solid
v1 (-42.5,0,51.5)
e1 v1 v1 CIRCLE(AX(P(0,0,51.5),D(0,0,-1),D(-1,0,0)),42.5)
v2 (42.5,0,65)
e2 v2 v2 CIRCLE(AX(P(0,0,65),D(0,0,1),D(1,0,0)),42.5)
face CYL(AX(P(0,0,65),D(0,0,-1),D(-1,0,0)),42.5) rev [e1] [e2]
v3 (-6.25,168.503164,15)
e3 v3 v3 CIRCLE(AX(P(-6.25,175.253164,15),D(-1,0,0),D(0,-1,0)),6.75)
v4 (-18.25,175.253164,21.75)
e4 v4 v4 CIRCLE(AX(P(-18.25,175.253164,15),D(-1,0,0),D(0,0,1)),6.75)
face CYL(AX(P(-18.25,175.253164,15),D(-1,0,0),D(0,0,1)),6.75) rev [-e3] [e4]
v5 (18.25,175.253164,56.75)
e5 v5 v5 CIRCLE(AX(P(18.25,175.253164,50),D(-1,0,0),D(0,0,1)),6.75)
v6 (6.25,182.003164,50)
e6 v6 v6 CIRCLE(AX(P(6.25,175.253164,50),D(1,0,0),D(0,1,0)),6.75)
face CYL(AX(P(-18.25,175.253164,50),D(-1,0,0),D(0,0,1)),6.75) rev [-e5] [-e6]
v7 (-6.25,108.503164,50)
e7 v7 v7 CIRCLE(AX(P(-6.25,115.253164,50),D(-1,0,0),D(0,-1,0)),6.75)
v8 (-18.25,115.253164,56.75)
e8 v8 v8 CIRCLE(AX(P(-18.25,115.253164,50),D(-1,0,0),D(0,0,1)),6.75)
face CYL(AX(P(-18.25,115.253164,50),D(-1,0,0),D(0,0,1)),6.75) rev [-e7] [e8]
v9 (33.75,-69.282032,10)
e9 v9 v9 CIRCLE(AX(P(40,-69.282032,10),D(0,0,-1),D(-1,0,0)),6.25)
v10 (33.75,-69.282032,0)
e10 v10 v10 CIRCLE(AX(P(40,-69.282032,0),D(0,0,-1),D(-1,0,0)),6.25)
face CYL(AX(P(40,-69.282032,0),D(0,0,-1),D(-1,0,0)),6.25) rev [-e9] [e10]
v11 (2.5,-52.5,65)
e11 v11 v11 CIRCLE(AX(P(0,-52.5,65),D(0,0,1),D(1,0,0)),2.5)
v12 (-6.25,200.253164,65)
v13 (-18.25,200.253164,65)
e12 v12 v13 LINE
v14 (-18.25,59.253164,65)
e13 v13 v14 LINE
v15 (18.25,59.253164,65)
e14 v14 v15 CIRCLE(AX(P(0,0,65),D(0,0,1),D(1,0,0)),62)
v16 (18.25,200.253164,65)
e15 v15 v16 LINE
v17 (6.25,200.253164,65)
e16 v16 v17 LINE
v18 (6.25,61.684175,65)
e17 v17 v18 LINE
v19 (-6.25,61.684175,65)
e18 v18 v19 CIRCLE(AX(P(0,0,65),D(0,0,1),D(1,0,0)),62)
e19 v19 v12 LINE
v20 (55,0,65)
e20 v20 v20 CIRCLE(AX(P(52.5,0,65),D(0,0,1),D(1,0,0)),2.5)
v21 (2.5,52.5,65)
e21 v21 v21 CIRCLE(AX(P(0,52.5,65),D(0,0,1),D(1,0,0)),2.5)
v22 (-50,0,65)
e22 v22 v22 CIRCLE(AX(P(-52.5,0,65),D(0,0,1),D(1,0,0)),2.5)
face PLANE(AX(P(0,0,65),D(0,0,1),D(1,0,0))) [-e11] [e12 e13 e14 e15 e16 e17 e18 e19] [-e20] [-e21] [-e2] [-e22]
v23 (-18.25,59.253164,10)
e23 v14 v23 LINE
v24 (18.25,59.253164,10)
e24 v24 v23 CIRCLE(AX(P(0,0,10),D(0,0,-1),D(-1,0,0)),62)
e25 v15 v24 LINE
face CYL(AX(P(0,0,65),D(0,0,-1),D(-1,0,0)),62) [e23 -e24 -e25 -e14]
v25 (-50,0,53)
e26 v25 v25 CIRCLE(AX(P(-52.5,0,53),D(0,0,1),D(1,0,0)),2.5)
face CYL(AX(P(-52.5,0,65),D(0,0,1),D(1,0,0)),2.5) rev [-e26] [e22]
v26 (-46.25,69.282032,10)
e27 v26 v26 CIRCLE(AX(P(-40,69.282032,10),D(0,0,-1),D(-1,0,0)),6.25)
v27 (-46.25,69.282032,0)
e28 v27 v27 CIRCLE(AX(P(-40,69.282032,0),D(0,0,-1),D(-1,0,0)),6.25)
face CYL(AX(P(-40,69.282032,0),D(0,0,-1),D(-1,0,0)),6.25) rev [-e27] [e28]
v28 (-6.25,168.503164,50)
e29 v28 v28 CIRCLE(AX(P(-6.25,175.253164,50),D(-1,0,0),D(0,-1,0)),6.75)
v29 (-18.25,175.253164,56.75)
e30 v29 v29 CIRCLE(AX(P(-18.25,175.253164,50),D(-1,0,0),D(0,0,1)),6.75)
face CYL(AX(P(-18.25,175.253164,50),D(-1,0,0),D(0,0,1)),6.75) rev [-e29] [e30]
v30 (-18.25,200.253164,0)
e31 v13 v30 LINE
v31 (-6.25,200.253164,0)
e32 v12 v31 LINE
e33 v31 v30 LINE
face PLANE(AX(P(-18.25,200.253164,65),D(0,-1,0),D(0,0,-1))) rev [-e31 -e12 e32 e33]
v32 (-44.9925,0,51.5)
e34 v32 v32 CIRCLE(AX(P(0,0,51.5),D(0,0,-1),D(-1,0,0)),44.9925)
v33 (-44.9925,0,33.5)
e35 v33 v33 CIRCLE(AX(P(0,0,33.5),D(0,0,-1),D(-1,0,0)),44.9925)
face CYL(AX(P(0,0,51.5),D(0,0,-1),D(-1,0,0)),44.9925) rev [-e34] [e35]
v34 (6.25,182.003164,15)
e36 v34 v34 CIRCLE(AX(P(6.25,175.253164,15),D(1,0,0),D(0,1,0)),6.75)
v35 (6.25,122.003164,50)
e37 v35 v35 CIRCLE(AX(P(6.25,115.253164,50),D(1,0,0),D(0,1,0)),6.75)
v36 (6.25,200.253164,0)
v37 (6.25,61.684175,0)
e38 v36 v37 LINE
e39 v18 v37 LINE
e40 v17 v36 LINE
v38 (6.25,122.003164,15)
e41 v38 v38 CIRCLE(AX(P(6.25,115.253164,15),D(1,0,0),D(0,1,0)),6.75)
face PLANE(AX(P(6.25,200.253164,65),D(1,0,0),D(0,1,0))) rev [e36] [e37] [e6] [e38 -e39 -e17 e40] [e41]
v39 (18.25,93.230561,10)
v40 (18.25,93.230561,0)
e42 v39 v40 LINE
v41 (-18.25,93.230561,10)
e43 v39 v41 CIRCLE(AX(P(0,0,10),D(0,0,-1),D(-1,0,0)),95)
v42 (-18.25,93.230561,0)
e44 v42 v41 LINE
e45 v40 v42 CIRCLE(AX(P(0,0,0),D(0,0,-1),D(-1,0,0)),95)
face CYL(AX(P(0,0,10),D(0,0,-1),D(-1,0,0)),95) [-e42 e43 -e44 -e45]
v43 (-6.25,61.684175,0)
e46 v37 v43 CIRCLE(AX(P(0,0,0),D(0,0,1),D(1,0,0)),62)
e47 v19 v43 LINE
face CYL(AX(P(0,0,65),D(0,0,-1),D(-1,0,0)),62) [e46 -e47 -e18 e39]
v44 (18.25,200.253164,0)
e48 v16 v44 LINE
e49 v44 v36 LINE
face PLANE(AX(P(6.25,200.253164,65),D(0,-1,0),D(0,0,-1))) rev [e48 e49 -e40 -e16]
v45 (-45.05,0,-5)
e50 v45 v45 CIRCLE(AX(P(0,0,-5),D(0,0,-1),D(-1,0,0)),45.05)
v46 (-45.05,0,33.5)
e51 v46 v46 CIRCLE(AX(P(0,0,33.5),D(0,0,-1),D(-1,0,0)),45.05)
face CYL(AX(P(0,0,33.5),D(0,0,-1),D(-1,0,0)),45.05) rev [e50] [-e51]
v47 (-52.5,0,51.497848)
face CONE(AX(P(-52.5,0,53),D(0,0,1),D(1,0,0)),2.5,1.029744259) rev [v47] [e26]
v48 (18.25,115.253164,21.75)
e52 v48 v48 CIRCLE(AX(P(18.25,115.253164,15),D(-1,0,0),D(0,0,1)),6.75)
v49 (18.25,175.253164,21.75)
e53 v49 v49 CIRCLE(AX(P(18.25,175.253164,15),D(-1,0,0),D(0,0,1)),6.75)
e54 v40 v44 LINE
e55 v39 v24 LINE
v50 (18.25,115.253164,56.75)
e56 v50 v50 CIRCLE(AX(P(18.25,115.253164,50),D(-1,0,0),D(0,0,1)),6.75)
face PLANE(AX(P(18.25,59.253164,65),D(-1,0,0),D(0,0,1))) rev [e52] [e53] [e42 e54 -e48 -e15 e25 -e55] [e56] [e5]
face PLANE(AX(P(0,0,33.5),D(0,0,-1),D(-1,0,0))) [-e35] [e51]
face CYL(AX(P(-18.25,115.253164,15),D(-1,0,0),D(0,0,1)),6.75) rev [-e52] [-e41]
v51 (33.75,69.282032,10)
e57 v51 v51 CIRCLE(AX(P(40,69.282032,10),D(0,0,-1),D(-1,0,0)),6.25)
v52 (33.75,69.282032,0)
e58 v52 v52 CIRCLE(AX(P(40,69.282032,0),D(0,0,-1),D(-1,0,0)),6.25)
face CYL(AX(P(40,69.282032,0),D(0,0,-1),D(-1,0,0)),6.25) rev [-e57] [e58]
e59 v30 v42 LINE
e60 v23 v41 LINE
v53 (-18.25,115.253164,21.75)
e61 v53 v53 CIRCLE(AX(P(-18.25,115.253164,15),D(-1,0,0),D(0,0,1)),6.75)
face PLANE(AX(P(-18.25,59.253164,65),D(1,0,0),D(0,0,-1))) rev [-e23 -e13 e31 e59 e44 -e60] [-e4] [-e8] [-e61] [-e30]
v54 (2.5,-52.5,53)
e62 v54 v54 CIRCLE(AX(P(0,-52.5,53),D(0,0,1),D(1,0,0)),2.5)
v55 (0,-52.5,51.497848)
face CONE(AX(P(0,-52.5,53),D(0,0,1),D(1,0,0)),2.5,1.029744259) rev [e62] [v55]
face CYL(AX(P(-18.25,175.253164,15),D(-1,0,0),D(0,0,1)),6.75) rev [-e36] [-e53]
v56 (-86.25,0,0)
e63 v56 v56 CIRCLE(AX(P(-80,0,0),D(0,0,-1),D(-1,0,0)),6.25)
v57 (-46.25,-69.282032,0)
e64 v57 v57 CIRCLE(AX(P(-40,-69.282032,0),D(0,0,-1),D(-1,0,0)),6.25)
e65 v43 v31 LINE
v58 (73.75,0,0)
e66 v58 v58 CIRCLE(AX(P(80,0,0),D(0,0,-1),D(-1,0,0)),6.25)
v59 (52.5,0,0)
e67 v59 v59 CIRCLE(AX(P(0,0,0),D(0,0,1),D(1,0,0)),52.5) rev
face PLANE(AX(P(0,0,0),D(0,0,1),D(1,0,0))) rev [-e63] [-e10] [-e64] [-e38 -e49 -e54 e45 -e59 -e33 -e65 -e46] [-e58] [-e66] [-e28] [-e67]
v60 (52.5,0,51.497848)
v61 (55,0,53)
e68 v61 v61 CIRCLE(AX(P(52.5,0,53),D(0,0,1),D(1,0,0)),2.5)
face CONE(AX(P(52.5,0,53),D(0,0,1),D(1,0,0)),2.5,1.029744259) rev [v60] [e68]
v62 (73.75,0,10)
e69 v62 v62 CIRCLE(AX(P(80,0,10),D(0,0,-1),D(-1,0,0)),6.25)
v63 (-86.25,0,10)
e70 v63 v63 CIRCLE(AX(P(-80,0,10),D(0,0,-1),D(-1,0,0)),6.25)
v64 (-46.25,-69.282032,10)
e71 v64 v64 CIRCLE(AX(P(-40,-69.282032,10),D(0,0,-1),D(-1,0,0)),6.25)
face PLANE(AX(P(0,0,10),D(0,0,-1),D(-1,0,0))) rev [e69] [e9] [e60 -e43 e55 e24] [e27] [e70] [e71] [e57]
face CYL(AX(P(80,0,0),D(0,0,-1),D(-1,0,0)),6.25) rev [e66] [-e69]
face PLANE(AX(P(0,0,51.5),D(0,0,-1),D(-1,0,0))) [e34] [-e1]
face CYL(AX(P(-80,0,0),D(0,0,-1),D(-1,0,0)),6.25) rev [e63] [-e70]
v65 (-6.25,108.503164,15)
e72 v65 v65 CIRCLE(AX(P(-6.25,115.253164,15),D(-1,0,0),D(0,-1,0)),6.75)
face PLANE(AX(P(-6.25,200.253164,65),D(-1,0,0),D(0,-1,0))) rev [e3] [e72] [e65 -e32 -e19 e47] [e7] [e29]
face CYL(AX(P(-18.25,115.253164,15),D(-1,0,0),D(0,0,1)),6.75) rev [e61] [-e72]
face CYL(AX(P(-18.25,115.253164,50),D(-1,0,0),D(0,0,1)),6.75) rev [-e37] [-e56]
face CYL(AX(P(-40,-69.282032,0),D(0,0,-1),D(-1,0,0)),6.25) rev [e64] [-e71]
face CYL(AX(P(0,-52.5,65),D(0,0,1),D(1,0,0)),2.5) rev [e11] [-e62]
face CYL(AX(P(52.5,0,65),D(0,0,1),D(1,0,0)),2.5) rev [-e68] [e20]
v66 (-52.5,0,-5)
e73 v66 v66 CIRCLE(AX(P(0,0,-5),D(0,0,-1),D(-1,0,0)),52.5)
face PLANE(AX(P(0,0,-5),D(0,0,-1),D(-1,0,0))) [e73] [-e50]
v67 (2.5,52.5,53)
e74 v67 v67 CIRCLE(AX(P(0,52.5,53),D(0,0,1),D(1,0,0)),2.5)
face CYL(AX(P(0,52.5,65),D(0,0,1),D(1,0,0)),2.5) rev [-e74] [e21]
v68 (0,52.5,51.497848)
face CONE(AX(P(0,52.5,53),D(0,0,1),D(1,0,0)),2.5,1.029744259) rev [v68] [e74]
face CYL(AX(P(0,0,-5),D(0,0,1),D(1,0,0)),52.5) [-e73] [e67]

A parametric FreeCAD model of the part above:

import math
import FreeCAD as App
import Part
import Sketcher

doc = App.newDocument("Part")
params = doc.addObject("Spreadsheet::Sheet", "Params")
for row, (alias, value) in enumerate([
    ("sketch1_diameter", "85 mm"),
    ("sketch1_radius", "62 mm"),
    ("sketch1_width", "12 mm"),
    ("sketch1_height", "141 mm"),
    ("pad1_length", "65 mm"),
    ("sketch2_diameter", "85 mm"),
    ("sketch2_radius", "95 mm"),
    ("sketch2_radius2", "62 mm"),
    ("pad2_length", "10 mm"),
    ("sketch3_diameter", "90.1 mm"),
    ("pocket1_length", "33.5 mm"),
    ("pocket2_length", "18 mm"),
    ("sketch5_diameter", "12.5 mm"),
    ("hole_diameter", "12.5 mm"),
    ("sketch6_diameter", "5 mm"),
    ("hole2_diameter", "5 mm"),
    ("hole2_depth", "12 mm"),
    ("sketch7_diameter", "105 mm"),
    ("sketch7_diameter2", "90.1 mm"),
    ("pad3_length", "5 mm"),
    ("sketch8_diameter", "13.5 mm"),
    ("hole3_diameter", "13.5 mm"),
], start=1):
    params.set(f"A{row}", alias)
    params.set(f"B{row}", "=" + value)
    params.setAlias(f"B{row}", alias)

body = doc.addObject("PartDesign::Body", "Body")

# Sketch on XY plane
sketch1 = doc.addObject("Sketcher::SketchObject", "Sketch")
body.addObject(sketch1)
sketch1.AttachmentSupport = (doc.XY_Plane, [""])
sketch1.MapMode = "FlatFace"
sketch1.addGeometry(Part.LineSegment(App.Vector(-18.25, 200.253164, 0), App.Vector(-18.25, 59.253164, 0)), False)
sketch1.addGeometry(Part.ArcOfCircle(Part.Circle(App.Vector(0, 0, 0), App.Vector(0, 0, 1), 62), math.radians(107.118855), math.radians(432.881145)), False)
sketch1.addGeometry(Part.LineSegment(App.Vector(18.25, 59.253164, 0), App.Vector(18.25, 200.253164, 0)), False)
sketch1.addGeometry(Part.LineSegment(App.Vector(18.25, 200.253164, 0), App.Vector(6.25, 200.253164, 0)), False)
sketch1.addGeometry(Part.LineSegment(App.Vector(6.25, 200.253164, 0), App.Vector(6.25, 61.684175, 0)), False)
sketch1.addGeometry(Part.ArcOfCircle(Part.Circle(App.Vector(0, 0, 0), App.Vector(0, 0, 1), 62), math.radians(84.214389), math.radians(95.785611)), False)
sketch1.addGeometry(Part.LineSegment(App.Vector(-6.25, 61.684175, 0), App.Vector(-6.25, 200.253164, 0)), False)
sketch1.addGeometry(Part.LineSegment(App.Vector(-6.25, 200.253164, 0), App.Vector(-18.25, 200.253164, 0)), False)
sketch1.addGeometry(Part.Circle(App.Vector(0, 0, 0), App.Vector(0, 0, 1), 42.5), False)
sketch1.addConstraint(Sketcher.Constraint("Coincident", 0, 2, 1, 1))
sketch1.addConstraint(Sketcher.Constraint("Coincident", 1, 2, 2, 1))
sketch1.addConstraint(Sketcher.Constraint("Coincident", 2, 2, 3, 1))
sketch1.addConstraint(Sketcher.Constraint("Coincident", 3, 2, 4, 1))
sketch1.addConstraint(Sketcher.Constraint("Coincident", 4, 2, 5, 1))
sketch1.addConstraint(Sketcher.Constraint("Coincident", 5, 2, 6, 1))
sketch1.addConstraint(Sketcher.Constraint("Coincident", 6, 2, 7, 1))
sketch1.addConstraint(Sketcher.Constraint("Coincident", 7, 2, 0, 1))
sketch1.addConstraint(Sketcher.Constraint("Vertical", 0))
sketch1.addConstraint(Sketcher.Constraint("Vertical", 2))
sketch1.addConstraint(Sketcher.Constraint("Horizontal", 3))
sketch1.addConstraint(Sketcher.Constraint("Vertical", 4))
sketch1.addConstraint(Sketcher.Constraint("Vertical", 6))
sketch1.addConstraint(Sketcher.Constraint("Horizontal", 7))
sketch1.addConstraint(Sketcher.Constraint("Coincident", 1, 3, -1, 1))
sketch1.addConstraint(Sketcher.Constraint("Coincident", 5, 3, -1, 1))
sketch1.addConstraint(Sketcher.Constraint("Coincident", 8, 3, -1, 1))
sketch1.addConstraint(Sketcher.Constraint("Equal", 1, 5))
sketch1.addConstraint(Sketcher.Constraint("Symmetric", 3, 2, 6, 2, -2))
sketch1.addConstraint(Sketcher.Constraint("Horizontal", 0, 2, 1, 2))
sketch1.addConstraint(Sketcher.Constraint("Diameter", 8, 85.0))
sketch1.addConstraint(Sketcher.Constraint("Radius", 1, 62.0))
sketch1.addConstraint(Sketcher.Constraint("DistanceX", 3, 2, 3, 1, 12.0))
sketch1.addConstraint(Sketcher.Constraint("DistanceY", 0, 2, 0, 1, 141.0))
sketch1.addConstraint(Sketcher.Constraint("DistanceX", 0, 2, 1, 2, 36.5))
sketch1.setExpression("Constraints[20]", "Params.sketch1_diameter")
sketch1.setExpression("Constraints[21]", "Params.sketch1_radius")
sketch1.setExpression("Constraints[22]", "Params.sketch1_width")
sketch1.setExpression("Constraints[23]", "Params.sketch1_height")
pad1 = doc.addObject("PartDesign::Pad", "Pad")
body.addObject(pad1)
pad1.Profile = sketch1
pad1.setExpression("Length", "Params.pad1_length")

# Sketch on XY plane
sketch2 = doc.addObject("Sketcher::SketchObject", "Sketch001")
body.addObject(sketch2)
sketch2.AttachmentSupport = (doc.XY_Plane, [""])
sketch2.MapMode = "FlatFace"
sketch2.addGeometry(Part.ArcOfCircle(Part.Circle(App.Vector(0, 0, 0), App.Vector(0, 0, 1), 95), math.radians(101.075671), math.radians(438.924329)), False)
sketch2.addGeometry(Part.ArcOfCircle(Part.Circle(App.Vector(0, 0, 0), App.Vector(0, 0, 1), 95), math.radians(93.772184), math.radians(101.075671)), False)
sketch2.addGeometry(Part.LineSegment(App.Vector(-6.25, 94.794185, 0), App.Vector(-6.25, 61.684175, 0)), False)
sketch2.addGeometry(Part.ArcOfCircle(Part.Circle(App.Vector(0, 0, 0), App.Vector(0, 0, 1), 62), math.radians(84.214389), math.radians(95.785611)), False)
sketch2.addGeometry(Part.LineSegment(App.Vector(6.25, 61.684175, 0), App.Vector(6.25, 94.794185, 0)), False)
sketch2.addGeometry(Part.ArcOfCircle(Part.Circle(App.Vector(0, 0, 0), App.Vector(0, 0, 1), 95), math.radians(78.924329), math.radians(86.227816)), False)
sketch2.addGeometry(Part.Circle(App.Vector(0, 0, 0), App.Vector(0, 0, 1), 42.5), False)
sketch2.addConstraint(Sketcher.Constraint("Tangent", 0, 1, 1, 2))
sketch2.addConstraint(Sketcher.Constraint("Coincident", 1, 1, 2, 1))
sketch2.addConstraint(Sketcher.Constraint("Coincident", 2, 2, 3, 2))
sketch2.addConstraint(Sketcher.Constraint("Coincident", 3, 1, 4, 1))
sketch2.addConstraint(Sketcher.Constraint("Coincident", 4, 2, 5, 2))
sketch2.addConstraint(Sketcher.Constraint("Tangent", 5, 1, 0, 2))
sketch2.addConstraint(Sketcher.Constraint("Vertical", 2))
sketch2.addConstraint(Sketcher.Constraint("Vertical", 4))
sketch2.addConstraint(Sketcher.Constraint("Coincident", 0, 3, -1, 1))
sketch2.addConstraint(Sketcher.Constraint("Coincident", 3, 3, -1, 1))
sketch2.addConstraint(Sketcher.Constraint("Coincident", 6, 3, -1, 1))
sketch2.addConstraint(Sketcher.Constraint("Equal", 0, 1))
sketch2.addConstraint(Sketcher.Constraint("Equal", 1, 5))
sketch2.addConstraint(Sketcher.Constraint("Horizontal", 2, 2, 3, 1))
sketch2.addConstraint(Sketcher.Constraint("Horizontal", 0, 1, 5, 1))
sketch2.addConstraint(Sketcher.Constraint("Diameter", 6, 85.0))
sketch2.addConstraint(Sketcher.Constraint("Radius", 0, 95.0))
sketch2.addConstraint(Sketcher.Constraint("Radius", 3, 62.0))
sketch2.addConstraint(Sketcher.Constraint("DistanceX", 0, 1, 1, 1, 12.0))
sketch2.addConstraint(Sketcher.Constraint("DistanceX", 2, 2, 3, 1, 12.5))
sketch2.setExpression("Constraints[15]", "Params.sketch2_diameter")
sketch2.setExpression("Constraints[16]", "Params.sketch2_radius")
sketch2.setExpression("Constraints[17]", "Params.sketch2_radius2")
pad2 = doc.addObject("PartDesign::Pad", "Pad001")
body.addObject(pad2)
pad2.Profile = sketch2
pad2.setExpression("Length", "Params.pad2_length")

# Sketch on XY plane
sketch3 = doc.addObject("Sketcher::SketchObject", "Sketch002")
body.addObject(sketch3)
sketch3.AttachmentSupport = (doc.XY_Plane, [""])
sketch3.MapMode = "FlatFace"
sketch3.addGeometry(Part.Circle(App.Vector(0, 0, 0), App.Vector(0, 0, 1), 45.05), False)
sketch3.addConstraint(Sketcher.Constraint("Coincident", 0, 3, -1, 1))
sketch3.addConstraint(Sketcher.Constraint("Diameter", 0, 90.1))
sketch3.setExpression("Constraints[1]", "Params.sketch3_diameter")
pocket1 = doc.addObject("PartDesign::Pocket", "Pocket")
body.addObject(pocket1)
pocket1.Profile = sketch3
pocket1.setExpression("Length", "Params.pocket1_length")
pocket1.Reversed = True

# Sketch on XY plane
sketch4 = doc.addObject("Sketcher::SketchObject", "Sketch003")
body.addObject(sketch4)
sketch4.AttachmentSupport = (doc.XY_Plane, [""])
sketch4.MapMode = "FlatFace"
sketch4.AttachmentOffset = App.Placement(App.Vector(0, 0, 33.5), App.Rotation())
sketch4.addGeometry(Part.Circle(App.Vector(0, 0, 0), App.Vector(0, 0, 1), 44.9925), False)
sketch4.addConstraint(Sketcher.Constraint("Coincident", 0, 3, -1, 1))
sketch4.addConstraint(Sketcher.Constraint("Diameter", 0, 89.985))
pocket2 = doc.addObject("PartDesign::Pocket", "Pocket001")
body.addObject(pocket2)
pocket2.Profile = sketch4
pocket2.setExpression("Length", "Params.pocket2_length")
pocket2.Reversed = True

# Sketch on XY plane
sketch5 = doc.addObject("Sketcher::SketchObject", "Sketch004")
body.addObject(sketch5)
sketch5.AttachmentSupport = (doc.XY_Plane, [""])
sketch5.MapMode = "FlatFace"
sketch5.addGeometry(Part.Circle(App.Vector(40, -69.282032, 0), App.Vector(0, 0, 1), 6.25), False)
sketch5.addGeometry(Part.Circle(App.Vector(80, 0, 0), App.Vector(0, 0, 1), 6.25), False)
sketch5.addGeometry(Part.Circle(App.Vector(40, 69.282032, 0), App.Vector(0, 0, 1), 6.25), False)
sketch5.addGeometry(Part.Circle(App.Vector(-40, 69.282032, 0), App.Vector(0, 0, 1), 6.25), False)
sketch5.addGeometry(Part.Circle(App.Vector(-80, 0, 0), App.Vector(0, 0, 1), 6.25), False)
sketch5.addGeometry(Part.Circle(App.Vector(-40, -69.282032, 0), App.Vector(0, 0, 1), 6.25), False)
sketch5.addConstraint(Sketcher.Constraint("Equal", 0, 1))
sketch5.addConstraint(Sketcher.Constraint("Equal", 1, 2))
sketch5.addConstraint(Sketcher.Constraint("Equal", 2, 3))
sketch5.addConstraint(Sketcher.Constraint("Equal", 3, 4))
sketch5.addConstraint(Sketcher.Constraint("Equal", 4, 5))
sketch5.addConstraint(Sketcher.Constraint("Symmetric", 0, 3, 3, 3, -1, 1))
sketch5.addConstraint(Sketcher.Constraint("Symmetric", 1, 3, 4, 3, -1, 1))
sketch5.addConstraint(Sketcher.Constraint("Symmetric", 2, 3, 5, 3, -1, 1))
sketch5.addConstraint(Sketcher.Constraint("Symmetric", 2, 3, 3, 3, -2))
sketch5.addConstraint(Sketcher.Constraint("PointOnObject", 1, 3, -1))
sketch5.addConstraint(Sketcher.Constraint("Diameter", 0, 12.5))
sketch5.addConstraint(Sketcher.Constraint("DistanceX", -1, 1, 0, 3, 40.0))
sketch5.addConstraint(Sketcher.Constraint("DistanceX", -1, 1, 1, 3, 80.0))
sketch5.addConstraint(Sketcher.Constraint("DistanceY", 0, 3, -1, 1, 69.282032))
sketch5.setExpression("Constraints[10]", "Params.sketch5_diameter")
doc.recompute()
hole = doc.addObject("PartDesign::Hole", "Hole")
body.addObject(hole)
hole.Profile = sketch5
hole.ThreadType = "None"
hole.setExpression("Diameter", "Params.hole_diameter")
hole.DepthType = "ThroughAll"
hole.Reversed = True

# Sketch on XY plane
sketch6 = doc.addObject("Sketcher::SketchObject", "Sketch005")
body.addObject(sketch6)
sketch6.AttachmentSupport = (doc.XY_Plane, [""])
sketch6.MapMode = "FlatFace"
sketch6.AttachmentOffset = App.Placement(App.Vector(0, 0, 65), App.Rotation())
sketch6.addGeometry(Part.Circle(App.Vector(0, -52.5, 0), App.Vector(0, 0, 1), 2.5), False)
sketch6.addGeometry(Part.Circle(App.Vector(-52.5, 0, 0), App.Vector(0, 0, 1), 2.5), False)
sketch6.addGeometry(Part.Circle(App.Vector(0, 52.5, 0), App.Vector(0, 0, 1), 2.5), False)
sketch6.addGeometry(Part.Circle(App.Vector(52.5, 0, 0), App.Vector(0, 0, 1), 2.5), False)
sketch6.addConstraint(Sketcher.Constraint("Equal", 0, 1))
sketch6.addConstraint(Sketcher.Constraint("Equal", 1, 2))
sketch6.addConstraint(Sketcher.Constraint("Equal", 2, 3))
sketch6.addConstraint(Sketcher.Constraint("Symmetric", 0, 3, 2, 3, -1, 1))
sketch6.addConstraint(Sketcher.Constraint("Symmetric", 1, 3, 3, 3, -1, 1))
sketch6.addConstraint(Sketcher.Constraint("PointOnObject", 0, 3, -2))
sketch6.addConstraint(Sketcher.Constraint("PointOnObject", 1, 3, -1))
sketch6.addConstraint(Sketcher.Constraint("Diameter", 0, 5.0))
sketch6.addConstraint(Sketcher.Constraint("DistanceY", 0, 3, 2, 3, 105.0))
sketch6.addConstraint(Sketcher.Constraint("DistanceX", 1, 3, 3, 3, 105.0))
sketch6.setExpression("Constraints[7]", "Params.sketch6_diameter")
doc.recompute()
hole2 = doc.addObject("PartDesign::Hole", "Hole001")
body.addObject(hole2)
hole2.Profile = sketch6
hole2.ThreadType = "None"
hole2.setExpression("Diameter", "Params.hole2_diameter")
hole2.DepthType = "Dimension"
hole2.setExpression("Depth", "Params.hole2_depth")
hole2.DrillPoint = "Angled"
hole2.DrillPointAngle = 118

# Sketch on XY plane
sketch7 = doc.addObject("Sketcher::SketchObject", "Sketch006")
body.addObject(sketch7)
sketch7.AttachmentSupport = (doc.XY_Plane, [""])
sketch7.MapMode = "FlatFace"
sketch7.AttachmentOffset = App.Placement(App.Vector(0, 0, -5), App.Rotation())
sketch7.addGeometry(Part.Circle(App.Vector(0, 0, 0), App.Vector(0, 0, 1), 52.5), False)
sketch7.addGeometry(Part.Circle(App.Vector(0, 0, 0), App.Vector(0, 0, 1), 45.05), False)
sketch7.addConstraint(Sketcher.Constraint("Coincident", 0, 3, -1, 1))
sketch7.addConstraint(Sketcher.Constraint("Coincident", 1, 3, -1, 1))
sketch7.addConstraint(Sketcher.Constraint("Diameter", 0, 105.0))
sketch7.addConstraint(Sketcher.Constraint("Diameter", 1, 90.1))
sketch7.setExpression("Constraints[2]", "Params.sketch7_diameter")
sketch7.setExpression("Constraints[3]", "Params.sketch7_diameter2")
pad3 = doc.addObject("PartDesign::Pad", "Pad002")
body.addObject(pad3)
pad3.Profile = sketch7
pad3.setExpression("Length", "Params.pad3_length")

# Sketch on YZ plane
sketch8 = doc.addObject("Sketcher::SketchObject", "Sketch007")
body.addObject(sketch8)
sketch8.AttachmentSupport = (doc.YZ_Plane, [""])
sketch8.MapMode = "FlatFace"
sketch8.AttachmentOffset = App.Placement(App.Vector(0, 0, -18.25), App.Rotation())
sketch8.addGeometry(Part.Circle(App.Vector(175.253164, 15, 0), App.Vector(0, 0, 1), 6.75), False)
sketch8.addGeometry(Part.Circle(App.Vector(175.253164, 50, 0), App.Vector(0, 0, 1), 6.75), False)
sketch8.addGeometry(Part.Circle(App.Vector(115.253164, 50, 0), App.Vector(0, 0, 1), 6.75), False)
sketch8.addGeometry(Part.Circle(App.Vector(115.253164, 15, 0), App.Vector(0, 0, 1), 6.75), False)
sketch8.addConstraint(Sketcher.Constraint("Equal", 0, 1))
sketch8.addConstraint(Sketcher.Constraint("Equal", 1, 2))
sketch8.addConstraint(Sketcher.Constraint("Equal", 2, 3))
sketch8.addConstraint(Sketcher.Constraint("Horizontal", 1, 3, 2, 3))
sketch8.addConstraint(Sketcher.Constraint("Horizontal", 0, 3, 3, 3))
sketch8.addConstraint(Sketcher.Constraint("Vertical", 0, 3, 1, 3))
sketch8.addConstraint(Sketcher.Constraint("Vertical", 2, 3, 3, 3))
sketch8.addConstraint(Sketcher.Constraint("Diameter", 0, 13.5))
sketch8.addConstraint(Sketcher.Constraint("DistanceY", -1, 1, 0, 3, 15.0))
sketch8.addConstraint(Sketcher.Constraint("DistanceY", -1, 1, 1, 3, 50.0))
sketch8.addConstraint(Sketcher.Constraint("DistanceX", 2, 3, 1, 3, 60.0))
sketch8.addConstraint(Sketcher.Constraint("DistanceX", -1, 1, 0, 3, 175.253164))
sketch8.setExpression("Constraints[7]", "Params.sketch8_diameter")
doc.recompute()
hole3 = doc.addObject("PartDesign::Hole", "Hole002")
body.addObject(hole3)
hole3.Profile = sketch8
hole3.ThreadType = "None"
hole3.setExpression("Diameter", "Params.hole3_diameter")
hole3.DepthType = "ThroughAll"
hole3.Reversed = True

doc.recompute()
